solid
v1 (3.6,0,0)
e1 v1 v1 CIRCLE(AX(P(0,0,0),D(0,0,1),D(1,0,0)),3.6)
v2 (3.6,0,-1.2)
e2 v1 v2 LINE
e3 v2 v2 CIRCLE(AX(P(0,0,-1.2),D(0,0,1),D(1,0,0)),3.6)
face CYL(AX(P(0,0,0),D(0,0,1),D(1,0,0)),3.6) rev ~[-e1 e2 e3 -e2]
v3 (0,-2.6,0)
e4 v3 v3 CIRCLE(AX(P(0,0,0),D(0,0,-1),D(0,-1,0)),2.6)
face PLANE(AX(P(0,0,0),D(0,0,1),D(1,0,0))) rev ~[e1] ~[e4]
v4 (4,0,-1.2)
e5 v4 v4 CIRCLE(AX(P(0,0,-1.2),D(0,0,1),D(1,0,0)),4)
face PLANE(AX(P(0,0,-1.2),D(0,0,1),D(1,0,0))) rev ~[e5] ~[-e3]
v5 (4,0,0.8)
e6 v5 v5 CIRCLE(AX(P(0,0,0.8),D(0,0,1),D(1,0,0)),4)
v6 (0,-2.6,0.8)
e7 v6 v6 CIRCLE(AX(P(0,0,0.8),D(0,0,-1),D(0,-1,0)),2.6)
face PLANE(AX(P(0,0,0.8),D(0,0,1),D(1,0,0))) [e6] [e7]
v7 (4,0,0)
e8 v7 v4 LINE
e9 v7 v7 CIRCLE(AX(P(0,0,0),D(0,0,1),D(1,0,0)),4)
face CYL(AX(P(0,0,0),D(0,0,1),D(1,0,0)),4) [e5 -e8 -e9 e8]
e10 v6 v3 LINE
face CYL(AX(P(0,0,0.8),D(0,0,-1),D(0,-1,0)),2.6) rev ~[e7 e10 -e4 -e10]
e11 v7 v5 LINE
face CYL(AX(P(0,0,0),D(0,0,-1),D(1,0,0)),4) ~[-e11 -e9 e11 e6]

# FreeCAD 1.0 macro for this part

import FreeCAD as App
import Part
import Sketcher
from FreeCAD import Vector
Q = App.Units.Quantity

doc = App.newDocument("Part")
body = doc.addObject("PartDesign::Body", "Body")

sketch1 = body.newObject("Sketcher::SketchObject", "Sketch")
sketch1.AttachmentSupport = (doc.getObject("XY_Plane"), [""])
sketch1.MapMode = "FlatFace"
sketch1.addGeometry(Part.Circle(Vector(0, 0, 0), Vector(0, 0, 1), 4), False)
sketch1.addConstraint([
    Sketcher.Constraint("Coincident", 0, 3, -1, 1),
    Sketcher.Constraint("Diameter", 0, Q("8 mm")),
])
pad1 = body.newObject("PartDesign::Pad", "Pad")
pad1.Profile = sketch1
pad1.Length = 0.8

sketch2 = body.newObject("Sketcher::SketchObject", "Sketch001")
sketch2.AttachmentSupport = (doc.getObject("XY_Plane"), [""])
sketch2.MapMode = "FlatFace"
sketch2.addGeometry([
    Part.Circle(Vector(0, 0, 0), Vector(0, 0, 1), 4),
    Part.Circle(Vector(0, 0, 0), Vector(0, 0, 1), 3.6),
], False)
sketch2.addConstraint([
    Sketcher.Constraint("Coincident", 0, 3, -1, 1),
    Sketcher.Constraint("Coincident", 1, 3, -1, 1),
    Sketcher.Constraint("Diameter", 1, Q("7.2 mm")),
    Sketcher.Constraint("Diameter", 0, Q("8 mm")),
])
pad2 = body.newObject("PartDesign::Pad", "Pad001")
pad2.Profile = sketch2
pad2.Length = 1.2
pad2.Reversed = True

sketch3 = body.newObject("Sketcher::SketchObject", "Sketch002")
sketch3.AttachmentSupport = (doc.getObject("XY_Plane"), [""])
sketch3.MapMode = "FlatFace"
sketch3.AttachmentOffset = App.Placement(Vector(0, 0, 0.8), App.Rotation())
sketch3.addGeometry(Part.Circle(Vector(0, 0, 0), Vector(0, 0, 1), 2.6), False)
sketch3.addConstraint([
    Sketcher.Constraint("Coincident", 0, 3, -1, 1),
    Sketcher.Constraint("Diameter", 0, Q("5.2 mm")),
])
doc.recompute()
hole = body.newObject("PartDesign::Hole", "Hole")
hole.Profile = sketch3
hole.ThreadType = "None"
hole.Diameter = 5.2
hole.DepthType = "ThroughAll"

doc.recompute()
